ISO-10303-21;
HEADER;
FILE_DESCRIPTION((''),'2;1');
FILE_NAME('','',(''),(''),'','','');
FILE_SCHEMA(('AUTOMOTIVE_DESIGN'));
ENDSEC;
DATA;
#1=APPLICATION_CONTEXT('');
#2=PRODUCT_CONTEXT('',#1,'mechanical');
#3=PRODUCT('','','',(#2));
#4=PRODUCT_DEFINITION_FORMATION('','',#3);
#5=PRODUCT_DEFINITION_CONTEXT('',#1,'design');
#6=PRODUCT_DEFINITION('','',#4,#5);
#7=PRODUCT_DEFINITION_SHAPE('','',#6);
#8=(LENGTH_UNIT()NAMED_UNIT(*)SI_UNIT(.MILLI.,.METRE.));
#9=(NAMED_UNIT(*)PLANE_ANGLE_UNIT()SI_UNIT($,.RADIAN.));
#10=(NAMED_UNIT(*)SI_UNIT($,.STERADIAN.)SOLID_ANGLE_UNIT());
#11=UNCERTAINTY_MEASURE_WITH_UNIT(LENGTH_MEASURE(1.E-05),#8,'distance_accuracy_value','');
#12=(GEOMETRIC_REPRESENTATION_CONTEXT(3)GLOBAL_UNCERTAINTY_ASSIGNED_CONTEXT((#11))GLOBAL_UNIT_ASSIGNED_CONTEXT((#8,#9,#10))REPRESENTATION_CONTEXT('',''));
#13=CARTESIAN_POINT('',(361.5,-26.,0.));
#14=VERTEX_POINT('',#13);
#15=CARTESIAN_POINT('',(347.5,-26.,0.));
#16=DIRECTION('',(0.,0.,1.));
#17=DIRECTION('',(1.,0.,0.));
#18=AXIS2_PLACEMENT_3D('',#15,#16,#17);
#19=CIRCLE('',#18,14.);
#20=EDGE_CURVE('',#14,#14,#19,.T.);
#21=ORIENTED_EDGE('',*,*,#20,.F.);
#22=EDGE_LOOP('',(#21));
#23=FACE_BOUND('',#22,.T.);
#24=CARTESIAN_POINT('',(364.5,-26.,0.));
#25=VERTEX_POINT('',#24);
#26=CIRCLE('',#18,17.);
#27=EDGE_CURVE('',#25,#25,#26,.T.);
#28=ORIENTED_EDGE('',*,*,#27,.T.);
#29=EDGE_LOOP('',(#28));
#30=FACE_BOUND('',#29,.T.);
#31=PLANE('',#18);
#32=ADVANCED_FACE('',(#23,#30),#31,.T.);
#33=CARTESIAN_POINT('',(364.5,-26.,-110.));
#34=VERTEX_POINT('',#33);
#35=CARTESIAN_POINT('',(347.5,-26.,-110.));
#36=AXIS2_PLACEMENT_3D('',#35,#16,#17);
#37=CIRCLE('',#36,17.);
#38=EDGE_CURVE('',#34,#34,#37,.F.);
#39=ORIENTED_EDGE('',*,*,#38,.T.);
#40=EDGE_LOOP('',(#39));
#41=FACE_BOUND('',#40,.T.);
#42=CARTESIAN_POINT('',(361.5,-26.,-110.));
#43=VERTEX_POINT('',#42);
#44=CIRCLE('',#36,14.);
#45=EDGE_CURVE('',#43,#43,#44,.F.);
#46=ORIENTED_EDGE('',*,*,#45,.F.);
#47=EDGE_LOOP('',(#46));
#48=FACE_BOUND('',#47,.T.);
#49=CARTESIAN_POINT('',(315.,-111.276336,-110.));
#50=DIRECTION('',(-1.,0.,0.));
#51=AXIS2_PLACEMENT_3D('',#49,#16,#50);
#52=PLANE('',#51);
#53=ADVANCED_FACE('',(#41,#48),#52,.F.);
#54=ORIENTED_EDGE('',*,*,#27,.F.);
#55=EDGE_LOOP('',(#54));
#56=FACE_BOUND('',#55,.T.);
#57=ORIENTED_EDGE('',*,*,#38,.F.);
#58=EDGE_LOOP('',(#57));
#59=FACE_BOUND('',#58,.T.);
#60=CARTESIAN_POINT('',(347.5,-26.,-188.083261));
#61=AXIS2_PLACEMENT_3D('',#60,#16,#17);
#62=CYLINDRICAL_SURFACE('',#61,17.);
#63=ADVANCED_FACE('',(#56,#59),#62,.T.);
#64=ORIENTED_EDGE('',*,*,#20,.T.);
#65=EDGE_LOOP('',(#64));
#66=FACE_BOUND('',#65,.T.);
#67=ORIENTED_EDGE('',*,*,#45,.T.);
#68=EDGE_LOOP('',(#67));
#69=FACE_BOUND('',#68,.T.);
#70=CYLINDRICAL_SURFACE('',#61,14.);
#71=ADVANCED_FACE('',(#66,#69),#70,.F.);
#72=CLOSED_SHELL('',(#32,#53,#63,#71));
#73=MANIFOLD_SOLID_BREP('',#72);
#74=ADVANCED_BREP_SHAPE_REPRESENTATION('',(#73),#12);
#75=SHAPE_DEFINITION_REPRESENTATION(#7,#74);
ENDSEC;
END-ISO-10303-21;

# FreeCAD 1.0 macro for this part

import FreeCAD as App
import Part
import Sketcher

doc = App.newDocument("Part")
body = doc.addObject("PartDesign::Body", "Body")

# Sketch on XY plane
sketch1 = body.newObject("Sketcher::SketchObject", "Sketch")
sketch1.AttachmentSupport = (doc.getObject("XY_Plane"), [""])
sketch1.MapMode = "FlatFace"
sketch1.addGeometry([
    Part.Circle(App.Vector(347.5, -26, 0), App.Vector(0, 0, 1), 17),
    Part.Circle(App.Vector(347.5, -26, 0), App.Vector(0, 0, 1), 14),
], False)
sketch1.addConstraint([
    Sketcher.Constraint("Coincident", 1, 3, 0, 3),
    Sketcher.Constraint("Diameter", 0, 34.0),
    Sketcher.Constraint("Diameter", 1, 28.0),
    Sketcher.Constraint("DistanceY", 0, 3, -1, 1, 26.0),
    Sketcher.Constraint("DistanceX", -1, 1, 0, 3, 347.5),
])
pad1 = body.newObject("PartDesign::Pad", "Pad")
pad1.Profile = sketch1
pad1.Length = 110
pad1.Reversed = True

doc.recompute()
